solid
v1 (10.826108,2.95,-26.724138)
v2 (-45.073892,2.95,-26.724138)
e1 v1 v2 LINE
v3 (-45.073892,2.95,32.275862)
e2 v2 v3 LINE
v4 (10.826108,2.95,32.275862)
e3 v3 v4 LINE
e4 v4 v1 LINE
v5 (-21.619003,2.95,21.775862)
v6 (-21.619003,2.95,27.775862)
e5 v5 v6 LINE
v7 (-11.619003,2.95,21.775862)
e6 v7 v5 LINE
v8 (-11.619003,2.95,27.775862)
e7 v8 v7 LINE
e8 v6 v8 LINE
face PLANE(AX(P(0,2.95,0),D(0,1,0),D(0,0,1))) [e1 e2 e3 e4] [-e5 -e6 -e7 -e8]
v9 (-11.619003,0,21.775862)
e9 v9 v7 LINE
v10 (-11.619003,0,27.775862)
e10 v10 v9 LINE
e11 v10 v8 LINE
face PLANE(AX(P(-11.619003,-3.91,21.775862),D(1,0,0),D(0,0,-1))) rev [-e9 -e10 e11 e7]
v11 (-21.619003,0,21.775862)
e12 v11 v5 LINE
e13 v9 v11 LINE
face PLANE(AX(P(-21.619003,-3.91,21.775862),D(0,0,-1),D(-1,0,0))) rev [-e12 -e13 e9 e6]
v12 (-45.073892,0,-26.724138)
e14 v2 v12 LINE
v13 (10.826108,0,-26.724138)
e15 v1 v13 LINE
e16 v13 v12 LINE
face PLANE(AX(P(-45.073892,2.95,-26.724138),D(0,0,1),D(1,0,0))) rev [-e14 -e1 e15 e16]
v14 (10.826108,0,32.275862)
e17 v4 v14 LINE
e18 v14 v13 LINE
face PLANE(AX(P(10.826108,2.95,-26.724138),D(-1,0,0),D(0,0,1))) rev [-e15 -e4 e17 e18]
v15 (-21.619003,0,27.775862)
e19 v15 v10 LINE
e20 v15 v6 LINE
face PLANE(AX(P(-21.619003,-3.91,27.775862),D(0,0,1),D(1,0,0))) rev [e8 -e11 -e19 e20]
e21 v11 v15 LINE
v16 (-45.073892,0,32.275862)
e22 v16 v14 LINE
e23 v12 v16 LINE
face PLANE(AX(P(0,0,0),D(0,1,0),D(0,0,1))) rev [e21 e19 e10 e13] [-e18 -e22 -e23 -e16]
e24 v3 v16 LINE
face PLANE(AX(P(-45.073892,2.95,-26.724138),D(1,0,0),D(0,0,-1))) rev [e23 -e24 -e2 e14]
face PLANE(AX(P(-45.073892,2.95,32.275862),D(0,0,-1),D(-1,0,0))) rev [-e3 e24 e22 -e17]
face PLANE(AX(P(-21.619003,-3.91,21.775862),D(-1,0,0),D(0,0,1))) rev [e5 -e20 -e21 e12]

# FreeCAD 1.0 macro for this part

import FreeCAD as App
import Part
import Sketcher

V = App.Vector

doc = App.newDocument("Part")
params = doc.addObject("Spreadsheet::Sheet", "Params")
for row, (alias, value) in enumerate([
    ("sketch1_height", "59 mm"),
    ("sketch1_width", "55.9 mm"),
    ("pad1_length", "2.95 mm"),
    ("sketch2_width", "10 mm"),
    ("sketch2_height", "6 mm"),
    ("pocket1_length", "6.86 mm"),
], start=1):
    params.set(f"A{row}", alias)
    params.set(f"B{row}", "=" + value)
    params.setAlias(f"B{row}", alias)

body = doc.addObject("PartDesign::Body", "Body")

# Sketch on XZ plane
sketch1 = doc.addObject("Sketcher::SketchObject", "Sketch")
body.addObject(sketch1)
sketch1.AttachmentSupport = (doc.XZ_Plane, [""])
sketch1.MapMode = "FlatFace"
sketch1.addGeometry([
    Part.LineSegment(V(-45.073892, -26.724138, 0), V(-45.073892, 32.275862, 0)),
    Part.LineSegment(V(-45.073892, 32.275862, 0), V(10.826108, 32.275862, 0)),
    Part.LineSegment(V(10.826108, 32.275862, 0), V(10.826108, -26.724138, 0)),
    Part.LineSegment(V(10.826108, -26.724138, 0), V(-45.073892, -26.724138, 0)),
], False)
sketch1.addConstraint([
    Sketcher.Constraint("Coincident", 0, 2, 1, 1),
    Sketcher.Constraint("Coincident", 1, 2, 2, 1),
    Sketcher.Constraint("Coincident", 2, 2, 3, 1),
    Sketcher.Constraint("Coincident", 3, 2, 0, 1),
    Sketcher.Constraint("Vertical", 0),
    Sketcher.Constraint("Horizontal", 1),
    Sketcher.Constraint("Vertical", 2),
    Sketcher.Constraint("Horizontal", 3),
    Sketcher.Constraint("DistanceY", 0, 1, 0, 2, 59.0),
    Sketcher.Constraint("DistanceX", 1, 1, 1, 2, 55.9),
    Sketcher.Constraint("DistanceX", 0, 2, -1, 1, 45.073892),
    Sketcher.Constraint("DistanceY", -1, 1, 0, 2, 32.275862),
])
sketch1.setExpression("Constraints[8]", "Params.sketch1_height")
sketch1.setExpression("Constraints[9]", "Params.sketch1_width")
pad1 = doc.addObject("PartDesign::Pad", "Pad")
body.addObject(pad1)
pad1.Profile = sketch1
pad1.setExpression("Length", "Params.pad1_length")
pad1.Reversed = True

# Sketch on XZ plane
sketch2 = doc.addObject("Sketcher::SketchObject", "Sketch001")
body.addObject(sketch2)
sketch2.AttachmentSupport = (doc.XZ_Plane, [""])
sketch2.MapMode = "FlatFace"
sketch2.AttachmentOffset = App.Placement(V(0, 0, -2.95), App.Rotation())
sketch2.addGeometry([
    Part.LineSegment(V(-21.619003, 21.775862, 0), V(-21.619003, 27.775862, 0)),
    Part.LineSegment(V(-21.619003, 27.775862, 0), V(-11.619003, 27.775862, 0)),
    Part.LineSegment(V(-11.619003, 27.775862, 0), V(-11.619003, 21.775862, 0)),
    Part.LineSegment(V(-11.619003, 21.775862, 0), V(-21.619003, 21.775862, 0)),
], False)
sketch2.addConstraint([
    Sketcher.Constraint("Coincident", 0, 2, 1, 1),
    Sketcher.Constraint("Coincident", 1, 2, 2, 1),
    Sketcher.Constraint("Coincident", 2, 2, 3, 1),
    Sketcher.Constraint("Coincident", 3, 2, 0, 1),
    Sketcher.Constraint("Vertical", 0),
    Sketcher.Constraint("Horizontal", 1),
    Sketcher.Constraint("Vertical", 2),
    Sketcher.Constraint("Horizontal", 3),
    Sketcher.Constraint("DistanceX", 1, 1, 1, 2, 10.0),
    Sketcher.Constraint("DistanceY", 0, 1, 0, 2, 6.0),
    Sketcher.Constraint("DistanceX", 0, 2, -1, 1, 21.619003),
    Sketcher.Constraint("DistanceY", -1, 1, 0, 2, 27.775862),
])
sketch2.setExpression("Constraints[8]", "Params.sketch2_width")
sketch2.setExpression("Constraints[9]", "Params.sketch2_height")
pocket1 = doc.addObject("PartDesign::Pocket", "Pocket")
body.addObject(pocket1)
pocket1.Profile = sketch2
pocket1.setExpression("Length", "Params.pocket1_length")
pocket1.Reversed = True

doc.recompute()
